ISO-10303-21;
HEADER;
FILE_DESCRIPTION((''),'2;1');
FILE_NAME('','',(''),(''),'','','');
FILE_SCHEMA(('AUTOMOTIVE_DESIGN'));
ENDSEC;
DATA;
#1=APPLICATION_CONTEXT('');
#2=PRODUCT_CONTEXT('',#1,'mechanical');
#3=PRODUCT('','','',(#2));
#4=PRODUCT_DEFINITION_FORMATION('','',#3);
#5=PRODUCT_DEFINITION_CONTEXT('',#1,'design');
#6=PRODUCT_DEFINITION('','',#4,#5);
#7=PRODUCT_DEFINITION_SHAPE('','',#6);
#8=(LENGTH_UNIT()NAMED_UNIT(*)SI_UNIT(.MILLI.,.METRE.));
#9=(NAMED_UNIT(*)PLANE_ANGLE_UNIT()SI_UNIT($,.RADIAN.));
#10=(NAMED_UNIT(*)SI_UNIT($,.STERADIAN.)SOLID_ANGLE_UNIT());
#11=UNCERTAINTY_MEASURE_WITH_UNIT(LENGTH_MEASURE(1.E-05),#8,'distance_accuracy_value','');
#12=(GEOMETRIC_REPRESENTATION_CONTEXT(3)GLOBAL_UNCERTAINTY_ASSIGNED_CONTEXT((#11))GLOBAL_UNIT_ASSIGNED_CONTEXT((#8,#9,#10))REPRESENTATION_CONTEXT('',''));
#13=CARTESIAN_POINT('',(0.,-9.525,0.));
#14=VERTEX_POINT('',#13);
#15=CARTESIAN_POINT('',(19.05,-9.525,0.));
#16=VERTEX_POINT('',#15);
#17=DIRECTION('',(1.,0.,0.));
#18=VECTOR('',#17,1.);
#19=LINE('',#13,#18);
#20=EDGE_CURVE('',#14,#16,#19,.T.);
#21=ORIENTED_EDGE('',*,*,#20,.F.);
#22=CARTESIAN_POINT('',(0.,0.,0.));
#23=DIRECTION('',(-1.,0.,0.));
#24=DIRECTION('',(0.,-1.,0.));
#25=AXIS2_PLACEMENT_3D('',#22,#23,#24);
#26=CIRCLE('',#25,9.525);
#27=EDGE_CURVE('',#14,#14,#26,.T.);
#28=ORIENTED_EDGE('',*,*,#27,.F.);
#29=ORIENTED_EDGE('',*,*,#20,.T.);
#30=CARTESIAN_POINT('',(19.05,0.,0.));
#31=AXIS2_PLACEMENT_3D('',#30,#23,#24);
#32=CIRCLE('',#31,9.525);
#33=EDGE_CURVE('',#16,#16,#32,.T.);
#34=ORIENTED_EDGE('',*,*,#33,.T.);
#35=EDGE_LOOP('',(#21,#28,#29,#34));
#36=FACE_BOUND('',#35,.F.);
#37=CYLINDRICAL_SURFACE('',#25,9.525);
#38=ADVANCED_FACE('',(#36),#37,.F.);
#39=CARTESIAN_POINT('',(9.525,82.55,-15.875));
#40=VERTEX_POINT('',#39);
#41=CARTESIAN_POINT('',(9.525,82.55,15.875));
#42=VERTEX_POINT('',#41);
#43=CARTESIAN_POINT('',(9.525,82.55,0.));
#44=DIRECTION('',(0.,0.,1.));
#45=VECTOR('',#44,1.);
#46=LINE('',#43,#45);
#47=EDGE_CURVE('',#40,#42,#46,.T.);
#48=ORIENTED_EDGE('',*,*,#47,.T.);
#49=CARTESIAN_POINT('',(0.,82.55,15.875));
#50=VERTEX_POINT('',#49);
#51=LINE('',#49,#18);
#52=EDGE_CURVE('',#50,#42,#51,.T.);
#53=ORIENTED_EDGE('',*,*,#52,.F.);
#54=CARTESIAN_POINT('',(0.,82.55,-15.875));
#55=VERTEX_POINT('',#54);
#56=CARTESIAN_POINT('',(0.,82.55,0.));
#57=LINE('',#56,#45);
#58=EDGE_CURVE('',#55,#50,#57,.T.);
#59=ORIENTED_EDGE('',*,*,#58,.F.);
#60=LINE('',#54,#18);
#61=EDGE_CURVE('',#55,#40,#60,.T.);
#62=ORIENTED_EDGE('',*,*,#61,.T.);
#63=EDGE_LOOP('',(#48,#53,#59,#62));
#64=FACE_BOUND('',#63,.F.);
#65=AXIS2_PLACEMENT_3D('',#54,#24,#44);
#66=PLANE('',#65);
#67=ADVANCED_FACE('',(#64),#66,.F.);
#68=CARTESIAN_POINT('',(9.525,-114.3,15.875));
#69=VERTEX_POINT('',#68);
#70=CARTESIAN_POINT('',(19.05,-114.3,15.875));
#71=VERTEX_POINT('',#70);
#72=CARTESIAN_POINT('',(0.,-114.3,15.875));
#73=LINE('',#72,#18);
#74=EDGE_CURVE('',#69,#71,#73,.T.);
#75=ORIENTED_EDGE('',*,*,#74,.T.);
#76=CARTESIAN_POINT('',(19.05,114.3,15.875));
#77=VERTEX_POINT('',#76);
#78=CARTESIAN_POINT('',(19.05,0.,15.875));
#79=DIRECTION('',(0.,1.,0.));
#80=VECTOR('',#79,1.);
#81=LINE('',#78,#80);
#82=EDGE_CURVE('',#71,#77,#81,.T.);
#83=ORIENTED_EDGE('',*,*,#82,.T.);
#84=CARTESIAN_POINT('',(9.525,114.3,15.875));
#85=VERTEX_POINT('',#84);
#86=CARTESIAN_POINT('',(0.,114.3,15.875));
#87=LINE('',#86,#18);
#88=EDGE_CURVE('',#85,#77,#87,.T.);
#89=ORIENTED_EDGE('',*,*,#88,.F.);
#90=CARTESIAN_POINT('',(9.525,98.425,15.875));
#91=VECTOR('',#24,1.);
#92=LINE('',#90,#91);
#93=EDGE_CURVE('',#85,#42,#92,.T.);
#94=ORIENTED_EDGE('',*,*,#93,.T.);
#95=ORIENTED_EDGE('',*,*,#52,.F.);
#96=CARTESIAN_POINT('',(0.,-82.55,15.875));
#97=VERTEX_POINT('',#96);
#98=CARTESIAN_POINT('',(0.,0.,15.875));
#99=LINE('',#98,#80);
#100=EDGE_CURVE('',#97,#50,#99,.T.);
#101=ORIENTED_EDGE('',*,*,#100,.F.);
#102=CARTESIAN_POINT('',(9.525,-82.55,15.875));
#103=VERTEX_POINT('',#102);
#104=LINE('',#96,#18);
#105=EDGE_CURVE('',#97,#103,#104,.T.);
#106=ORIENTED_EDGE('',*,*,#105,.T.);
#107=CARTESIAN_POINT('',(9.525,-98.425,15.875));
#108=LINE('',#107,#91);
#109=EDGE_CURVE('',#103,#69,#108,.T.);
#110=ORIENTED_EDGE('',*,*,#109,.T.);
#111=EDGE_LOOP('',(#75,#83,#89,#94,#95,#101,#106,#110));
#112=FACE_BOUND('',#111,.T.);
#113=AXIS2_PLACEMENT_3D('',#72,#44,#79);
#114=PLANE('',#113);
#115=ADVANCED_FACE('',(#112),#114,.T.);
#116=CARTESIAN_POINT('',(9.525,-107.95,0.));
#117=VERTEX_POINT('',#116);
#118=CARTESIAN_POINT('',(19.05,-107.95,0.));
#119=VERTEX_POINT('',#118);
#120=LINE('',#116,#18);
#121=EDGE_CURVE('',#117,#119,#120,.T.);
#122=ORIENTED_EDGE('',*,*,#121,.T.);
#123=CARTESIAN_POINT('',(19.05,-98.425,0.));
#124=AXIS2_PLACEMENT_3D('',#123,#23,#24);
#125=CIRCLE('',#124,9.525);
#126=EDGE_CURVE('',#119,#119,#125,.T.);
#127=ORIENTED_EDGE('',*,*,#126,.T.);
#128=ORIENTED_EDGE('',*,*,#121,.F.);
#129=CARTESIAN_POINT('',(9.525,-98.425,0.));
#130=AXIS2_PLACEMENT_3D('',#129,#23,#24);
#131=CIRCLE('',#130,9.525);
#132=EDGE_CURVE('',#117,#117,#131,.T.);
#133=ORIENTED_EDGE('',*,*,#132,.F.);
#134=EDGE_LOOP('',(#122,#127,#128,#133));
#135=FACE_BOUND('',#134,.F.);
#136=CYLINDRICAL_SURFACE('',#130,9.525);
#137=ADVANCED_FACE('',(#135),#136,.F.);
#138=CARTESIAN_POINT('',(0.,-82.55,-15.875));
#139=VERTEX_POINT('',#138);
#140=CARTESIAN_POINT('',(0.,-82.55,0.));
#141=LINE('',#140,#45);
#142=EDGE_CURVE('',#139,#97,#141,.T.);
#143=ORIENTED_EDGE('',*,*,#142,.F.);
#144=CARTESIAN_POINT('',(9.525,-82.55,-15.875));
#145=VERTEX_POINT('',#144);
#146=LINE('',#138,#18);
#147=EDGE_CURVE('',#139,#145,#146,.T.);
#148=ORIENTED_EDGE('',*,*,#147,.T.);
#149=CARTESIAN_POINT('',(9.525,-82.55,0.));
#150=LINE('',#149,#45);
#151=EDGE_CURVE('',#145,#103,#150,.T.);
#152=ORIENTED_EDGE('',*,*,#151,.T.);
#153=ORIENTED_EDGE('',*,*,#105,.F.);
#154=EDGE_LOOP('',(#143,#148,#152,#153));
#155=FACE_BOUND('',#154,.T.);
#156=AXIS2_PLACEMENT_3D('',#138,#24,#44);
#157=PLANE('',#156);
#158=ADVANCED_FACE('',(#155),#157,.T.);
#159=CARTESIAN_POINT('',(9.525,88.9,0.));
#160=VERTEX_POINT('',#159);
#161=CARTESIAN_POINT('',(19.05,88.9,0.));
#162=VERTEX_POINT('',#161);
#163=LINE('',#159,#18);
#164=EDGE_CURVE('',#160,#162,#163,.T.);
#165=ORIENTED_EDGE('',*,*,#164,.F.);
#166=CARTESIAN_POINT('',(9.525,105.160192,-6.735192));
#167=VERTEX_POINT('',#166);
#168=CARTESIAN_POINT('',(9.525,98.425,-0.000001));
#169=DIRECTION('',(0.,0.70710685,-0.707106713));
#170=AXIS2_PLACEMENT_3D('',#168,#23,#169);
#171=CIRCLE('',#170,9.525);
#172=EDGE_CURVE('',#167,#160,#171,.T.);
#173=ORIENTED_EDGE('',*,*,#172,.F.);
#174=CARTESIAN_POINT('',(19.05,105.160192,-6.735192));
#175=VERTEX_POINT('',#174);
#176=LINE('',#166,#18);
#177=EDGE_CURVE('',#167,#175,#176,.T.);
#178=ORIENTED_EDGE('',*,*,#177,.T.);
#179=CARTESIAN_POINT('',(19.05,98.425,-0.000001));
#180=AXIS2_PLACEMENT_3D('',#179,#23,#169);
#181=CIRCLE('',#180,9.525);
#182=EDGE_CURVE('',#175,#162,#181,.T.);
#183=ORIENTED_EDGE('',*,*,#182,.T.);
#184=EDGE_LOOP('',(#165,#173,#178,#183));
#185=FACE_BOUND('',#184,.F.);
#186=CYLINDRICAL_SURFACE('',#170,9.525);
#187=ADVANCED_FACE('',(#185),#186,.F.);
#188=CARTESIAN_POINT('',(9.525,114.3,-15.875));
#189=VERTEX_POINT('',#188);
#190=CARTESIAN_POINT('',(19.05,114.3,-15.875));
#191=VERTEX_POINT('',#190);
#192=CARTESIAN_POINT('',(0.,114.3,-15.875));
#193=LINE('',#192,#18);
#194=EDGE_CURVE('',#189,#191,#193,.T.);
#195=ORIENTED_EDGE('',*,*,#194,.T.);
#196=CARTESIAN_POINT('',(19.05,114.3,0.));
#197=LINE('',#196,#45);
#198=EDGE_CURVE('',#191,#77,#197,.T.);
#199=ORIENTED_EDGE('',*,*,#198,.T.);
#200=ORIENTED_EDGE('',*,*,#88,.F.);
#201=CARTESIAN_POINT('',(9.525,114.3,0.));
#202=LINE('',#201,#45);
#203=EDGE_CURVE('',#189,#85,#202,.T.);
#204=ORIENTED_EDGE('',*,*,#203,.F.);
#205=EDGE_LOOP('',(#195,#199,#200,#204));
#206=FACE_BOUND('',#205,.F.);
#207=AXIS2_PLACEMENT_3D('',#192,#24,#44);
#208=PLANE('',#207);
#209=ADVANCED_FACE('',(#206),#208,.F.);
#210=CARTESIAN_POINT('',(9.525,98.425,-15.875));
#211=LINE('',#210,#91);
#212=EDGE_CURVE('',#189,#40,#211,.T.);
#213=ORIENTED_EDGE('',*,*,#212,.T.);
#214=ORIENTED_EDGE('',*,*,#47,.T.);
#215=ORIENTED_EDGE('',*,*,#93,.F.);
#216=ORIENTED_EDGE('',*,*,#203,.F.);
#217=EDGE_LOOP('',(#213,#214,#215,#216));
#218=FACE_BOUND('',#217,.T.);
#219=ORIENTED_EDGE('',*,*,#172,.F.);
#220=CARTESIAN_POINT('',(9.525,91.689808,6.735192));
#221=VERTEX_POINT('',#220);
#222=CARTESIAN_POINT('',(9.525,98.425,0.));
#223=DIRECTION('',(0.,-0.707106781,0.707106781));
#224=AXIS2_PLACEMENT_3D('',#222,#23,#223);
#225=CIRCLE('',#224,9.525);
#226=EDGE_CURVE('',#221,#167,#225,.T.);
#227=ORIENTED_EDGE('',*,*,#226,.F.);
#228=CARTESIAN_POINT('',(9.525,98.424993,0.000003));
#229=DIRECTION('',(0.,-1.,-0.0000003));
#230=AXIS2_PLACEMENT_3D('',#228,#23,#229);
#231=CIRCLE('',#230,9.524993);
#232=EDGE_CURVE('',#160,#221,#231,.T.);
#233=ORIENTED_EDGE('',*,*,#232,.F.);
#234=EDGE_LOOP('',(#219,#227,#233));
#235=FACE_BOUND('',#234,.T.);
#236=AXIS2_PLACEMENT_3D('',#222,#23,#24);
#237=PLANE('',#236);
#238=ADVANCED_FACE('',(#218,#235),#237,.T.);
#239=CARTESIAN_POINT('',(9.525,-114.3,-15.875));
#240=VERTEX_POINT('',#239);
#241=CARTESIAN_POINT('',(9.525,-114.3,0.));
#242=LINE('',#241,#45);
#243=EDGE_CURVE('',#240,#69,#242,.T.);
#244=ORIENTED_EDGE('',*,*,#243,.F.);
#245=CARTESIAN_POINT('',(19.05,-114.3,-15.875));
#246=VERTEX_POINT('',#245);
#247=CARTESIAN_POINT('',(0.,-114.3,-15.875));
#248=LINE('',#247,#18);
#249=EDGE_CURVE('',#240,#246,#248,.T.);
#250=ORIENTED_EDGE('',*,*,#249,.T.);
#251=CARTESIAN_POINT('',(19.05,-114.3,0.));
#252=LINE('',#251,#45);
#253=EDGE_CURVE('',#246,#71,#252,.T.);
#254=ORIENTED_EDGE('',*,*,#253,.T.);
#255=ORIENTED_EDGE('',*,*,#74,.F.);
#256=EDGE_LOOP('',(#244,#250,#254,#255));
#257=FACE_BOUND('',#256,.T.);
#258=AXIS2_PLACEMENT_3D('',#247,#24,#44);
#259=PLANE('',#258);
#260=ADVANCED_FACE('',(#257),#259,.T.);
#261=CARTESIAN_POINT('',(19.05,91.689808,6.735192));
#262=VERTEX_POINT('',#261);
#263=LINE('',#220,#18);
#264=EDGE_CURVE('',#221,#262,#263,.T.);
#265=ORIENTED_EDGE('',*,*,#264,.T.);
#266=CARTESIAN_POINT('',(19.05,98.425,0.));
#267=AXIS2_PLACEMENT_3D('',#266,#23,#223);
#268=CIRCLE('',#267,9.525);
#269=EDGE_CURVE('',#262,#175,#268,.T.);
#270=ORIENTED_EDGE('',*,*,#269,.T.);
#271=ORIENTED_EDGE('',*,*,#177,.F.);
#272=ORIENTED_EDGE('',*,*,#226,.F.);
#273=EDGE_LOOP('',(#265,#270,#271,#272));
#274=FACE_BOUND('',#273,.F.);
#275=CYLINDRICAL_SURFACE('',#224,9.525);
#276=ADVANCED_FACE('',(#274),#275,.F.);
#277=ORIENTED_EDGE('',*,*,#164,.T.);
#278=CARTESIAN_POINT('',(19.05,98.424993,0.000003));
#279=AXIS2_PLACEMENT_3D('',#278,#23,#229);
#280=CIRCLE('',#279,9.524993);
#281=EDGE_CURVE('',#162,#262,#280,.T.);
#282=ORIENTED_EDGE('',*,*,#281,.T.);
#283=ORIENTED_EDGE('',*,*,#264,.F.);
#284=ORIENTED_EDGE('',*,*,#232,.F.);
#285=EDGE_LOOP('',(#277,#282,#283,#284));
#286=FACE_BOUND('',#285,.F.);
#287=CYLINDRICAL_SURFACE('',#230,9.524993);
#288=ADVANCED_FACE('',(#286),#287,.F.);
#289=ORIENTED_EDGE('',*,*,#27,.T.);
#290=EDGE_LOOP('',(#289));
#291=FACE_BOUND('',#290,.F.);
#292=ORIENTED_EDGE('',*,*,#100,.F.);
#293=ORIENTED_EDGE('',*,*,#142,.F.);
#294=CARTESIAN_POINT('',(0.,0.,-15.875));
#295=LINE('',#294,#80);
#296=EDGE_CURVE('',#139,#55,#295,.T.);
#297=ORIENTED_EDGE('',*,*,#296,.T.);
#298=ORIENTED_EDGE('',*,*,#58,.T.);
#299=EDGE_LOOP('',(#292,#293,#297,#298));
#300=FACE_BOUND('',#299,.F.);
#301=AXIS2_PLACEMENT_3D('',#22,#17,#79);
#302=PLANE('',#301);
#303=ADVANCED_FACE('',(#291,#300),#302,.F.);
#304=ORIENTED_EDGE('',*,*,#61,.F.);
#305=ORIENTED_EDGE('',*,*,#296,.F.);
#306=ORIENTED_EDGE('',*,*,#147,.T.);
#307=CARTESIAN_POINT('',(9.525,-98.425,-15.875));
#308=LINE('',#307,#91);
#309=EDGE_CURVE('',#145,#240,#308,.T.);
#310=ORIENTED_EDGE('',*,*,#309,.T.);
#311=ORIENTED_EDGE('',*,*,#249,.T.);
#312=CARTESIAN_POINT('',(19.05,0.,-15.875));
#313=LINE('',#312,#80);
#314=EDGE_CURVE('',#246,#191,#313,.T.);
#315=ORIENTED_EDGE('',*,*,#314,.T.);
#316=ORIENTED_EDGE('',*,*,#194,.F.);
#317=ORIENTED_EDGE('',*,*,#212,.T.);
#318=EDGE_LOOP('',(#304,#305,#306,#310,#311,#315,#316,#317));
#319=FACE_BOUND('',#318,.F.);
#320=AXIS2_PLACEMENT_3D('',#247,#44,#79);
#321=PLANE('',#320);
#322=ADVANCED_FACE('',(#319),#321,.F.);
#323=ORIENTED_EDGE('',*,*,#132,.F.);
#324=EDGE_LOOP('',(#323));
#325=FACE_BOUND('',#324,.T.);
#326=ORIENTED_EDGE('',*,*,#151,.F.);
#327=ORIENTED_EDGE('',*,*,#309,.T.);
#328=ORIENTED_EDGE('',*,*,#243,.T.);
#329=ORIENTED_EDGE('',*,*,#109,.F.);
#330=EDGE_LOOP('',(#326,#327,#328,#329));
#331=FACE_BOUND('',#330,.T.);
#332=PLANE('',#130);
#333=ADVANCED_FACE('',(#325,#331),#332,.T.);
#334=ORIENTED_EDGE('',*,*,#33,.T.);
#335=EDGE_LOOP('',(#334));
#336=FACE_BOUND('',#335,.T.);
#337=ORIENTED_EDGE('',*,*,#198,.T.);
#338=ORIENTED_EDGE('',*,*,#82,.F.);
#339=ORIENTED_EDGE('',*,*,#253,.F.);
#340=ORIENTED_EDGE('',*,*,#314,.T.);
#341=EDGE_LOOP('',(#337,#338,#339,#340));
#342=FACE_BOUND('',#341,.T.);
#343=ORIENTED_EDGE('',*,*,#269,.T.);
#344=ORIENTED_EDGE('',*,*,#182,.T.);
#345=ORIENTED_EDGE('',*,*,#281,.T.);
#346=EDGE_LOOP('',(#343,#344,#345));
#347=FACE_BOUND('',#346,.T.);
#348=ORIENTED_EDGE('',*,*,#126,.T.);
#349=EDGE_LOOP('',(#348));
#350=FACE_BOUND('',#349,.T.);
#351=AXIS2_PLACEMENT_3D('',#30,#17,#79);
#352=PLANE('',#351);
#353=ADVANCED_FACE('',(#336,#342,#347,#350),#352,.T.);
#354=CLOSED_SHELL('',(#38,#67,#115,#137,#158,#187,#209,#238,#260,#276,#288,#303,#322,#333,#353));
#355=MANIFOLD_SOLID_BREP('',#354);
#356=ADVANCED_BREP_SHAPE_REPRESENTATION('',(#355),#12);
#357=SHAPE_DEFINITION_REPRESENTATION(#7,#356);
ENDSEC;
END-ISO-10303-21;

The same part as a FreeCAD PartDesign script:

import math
import FreeCAD as App
import Part
import Sketcher

V = App.Vector
Q = App.Units.Quantity

doc = App.newDocument("Part")
body = doc.addObject("PartDesign::Body", "Body")

# Sketch on YZ plane
sketch1 = body.newObject("Sketcher::SketchObject", "Sketch")
sketch1.AttachmentSupport = (doc.getObject("YZ_Plane"), [""])
sketch1.MapMode = "FlatFace"
sketch1.addGeometry([
    Part.LineSegment(V(-114, 16, 0), V(-114, -16, 0)),
    Part.LineSegment(V(-114, -16, 0), V(114, -16, 0)),
    Part.LineSegment(V(114, -16, 0), V(114, 16, 0)),
    Part.LineSegment(V(114, 16, 0), V(-114, 16, 0)),
], False)
sketch1.addConstraint([
    Sketcher.Constraint("Coincident", 0, 2, 1, 1),
    Sketcher.Constraint("Coincident", 1, 2, 2, 1),
    Sketcher.Constraint("Coincident", 2, 2, 3, 1),
    Sketcher.Constraint("Coincident", 3, 2, 0, 1),
    Sketcher.Constraint("Vertical", 0),
    Sketcher.Constraint("Horizontal", 1),
    Sketcher.Constraint("Vertical", 2),
    Sketcher.Constraint("Horizontal", 3),
    Sketcher.Constraint("Symmetric", 0, 2, 2, 2, -1, 1),
    Sketcher.Constraint("DistanceX", 1, 1, 1, 2, Q("9 in")),
    Sketcher.Constraint("DistanceY", 0, 2, 0, 1, Q("1.25 in")),
])
pad1 = body.newObject("PartDesign::Pad", "Pad")
pad1.Profile = sketch1
pad1.Length = Q("0.75 in")

# Sketch on YZ plane
sketch2 = body.newObject("Sketcher::SketchObject", "Sketch001")
sketch2.AttachmentSupport = (doc.getObject("YZ_Plane"), [""])
sketch2.MapMode = "FlatFace"
sketch2.addGeometry([
    Part.LineSegment(V(114, 16, 0), V(114, -16, 0)),  # 0
    Part.LineSegment(V(114, -16, 0), V(83, -16, 0)),  # 1
    Part.LineSegment(V(83, -16, 0), V(83, 16, 0)),  # 2
    Part.LineSegment(V(83, 16, 0), V(114, 16, 0)),  # 3
    Part.LineSegment(V(-83, 16, 0), V(-83, -16, 0)),  # 4
    Part.LineSegment(V(-83, -16, 0), V(-114, -16, 0)),  # 5
    Part.LineSegment(V(-114, -16, 0), V(-114, 16, 0)),  # 6
    Part.LineSegment(V(-114, 16, 0), V(-83, 16, 0)),  # 7
], False)
sketch2.addConstraint([
    Sketcher.Constraint("Coincident", 0, 2, 1, 1),
    Sketcher.Constraint("Coincident", 1, 2, 2, 1),
    Sketcher.Constraint("Coincident", 2, 2, 3, 1),
    Sketcher.Constraint("Coincident", 3, 2, 0, 1),
    Sketcher.Constraint("Coincident", 4, 2, 5, 1),
    Sketcher.Constraint("Coincident", 5, 2, 6, 1),
    Sketcher.Constraint("Coincident", 6, 2, 7, 1),
    Sketcher.Constraint("Coincident", 7, 2, 4, 1),
    Sketcher.Constraint("Vertical", 0),
    Sketcher.Constraint("Horizontal", 1),
    Sketcher.Constraint("Vertical", 2),
    Sketcher.Constraint("Horizontal", 3),
    Sketcher.Constraint("Vertical", 4),
    Sketcher.Constraint("Horizontal", 5),
    Sketcher.Constraint("Vertical", 6),
    Sketcher.Constraint("Horizontal", 7),
    Sketcher.Constraint("Symmetric", 2, 2, 4, 2, -1, 1),
    Sketcher.Constraint("Symmetric", 0, 2, 6, 2, -1, 1),
    Sketcher.Constraint("Horizontal", 1, 2, 4, 2),
    Sketcher.Constraint("Equal", 7, 0),
    Sketcher.Constraint("DistanceX", 5, 2, 0, 2, Q("9 in")),
    Sketcher.Constraint("DistanceX", 1, 2, 1, 1, Q("1.25 in")),
])
pocket1 = body.newObject("PartDesign::Pocket", "Pocket")
pocket1.Profile = sketch2
pocket1.Length = Q("0.375 in")
pocket1.Reversed = True

# Sketch on YZ plane
sketch3 = body.newObject("Sketcher::SketchObject", "Sketch002")
sketch3.AttachmentSupport = (doc.getObject("YZ_Plane"), [""])
sketch3.MapMode = "FlatFace"
sketch3.AttachmentOffset = App.Placement(V(0, 0, 0.375 * 25.4), App.Rotation())
sketch3.addGeometry([
    Part.ArcOfCircle(Part.Circle(V(98, 0, 0), V(0, 0, 1), 10), math.radians(-45), math.radians(135)),
    Part.ArcOfCircle(Part.Circle(V(98, 0, 0), V(0, 0, 1), 10), math.radians(180), math.radians(315)),
    Part.ArcOfCircle(Part.Circle(V(98, 0, 0), V(0, 0, 1), 10), math.radians(135), math.radians(180)),
    Part.Circle(V(-98, 0, 0), V(0, 0, 1), 10),
], False)
sketch3.addConstraint([
    Sketcher.Constraint("Tangent", 0, 1, 1, 2),
    Sketcher.Constraint("Tangent", 1, 1, 2, 2),
    Sketcher.Constraint("Tangent", 2, 1, 0, 2),
    Sketcher.Constraint("Equal", 1, 3),
    Sketcher.Constraint("Symmetric", 0, 3, 3, 3, -1, 1),
    Sketcher.Constraint("PointOnObject", 0, 3, -1),
    Sketcher.Constraint("PointOnObject", 1, 1, -1),
    Sketcher.Constraint("Diameter", 3, Q("0.75 in")),
    Sketcher.Constraint("DistanceX", -1, 1, 1, 1, Q("3.5 in")),
    Sketcher.Constraint("DistanceX", 2, 3, 0, 1, 6.735199),
    Sketcher.Constraint("DistanceX", -1, 1, 2, 1, 91.689808),
])
pocket2 = body.newObject("PartDesign::Pocket", "Pocket001")
pocket2.Profile = sketch3
pocket2.Length = Q("1 in")
pocket2.Reversed = True

# Sketch on YZ plane
sketch4 = body.newObject("Sketcher::SketchObject", "Sketch003")
sketch4.AttachmentSupport = (doc.getObject("YZ_Plane"), [""])
sketch4.MapMode = "FlatFace"
sketch4.addGeometry(Part.Circle(V(0, 0, 0), V(0, 0, 1), 10), False)
sketch4.addConstraint([
    Sketcher.Constraint("Coincident", 0, 3, -1, 1),
    Sketcher.Constraint("Diameter", 0, Q("0.75 in")),
])
pocket3 = body.newObject("PartDesign::Pocket", "Pocket002")
pocket3.Profile = sketch4
pocket3.Length = Q("1 in")
pocket3.Reversed = True

doc.recompute()
